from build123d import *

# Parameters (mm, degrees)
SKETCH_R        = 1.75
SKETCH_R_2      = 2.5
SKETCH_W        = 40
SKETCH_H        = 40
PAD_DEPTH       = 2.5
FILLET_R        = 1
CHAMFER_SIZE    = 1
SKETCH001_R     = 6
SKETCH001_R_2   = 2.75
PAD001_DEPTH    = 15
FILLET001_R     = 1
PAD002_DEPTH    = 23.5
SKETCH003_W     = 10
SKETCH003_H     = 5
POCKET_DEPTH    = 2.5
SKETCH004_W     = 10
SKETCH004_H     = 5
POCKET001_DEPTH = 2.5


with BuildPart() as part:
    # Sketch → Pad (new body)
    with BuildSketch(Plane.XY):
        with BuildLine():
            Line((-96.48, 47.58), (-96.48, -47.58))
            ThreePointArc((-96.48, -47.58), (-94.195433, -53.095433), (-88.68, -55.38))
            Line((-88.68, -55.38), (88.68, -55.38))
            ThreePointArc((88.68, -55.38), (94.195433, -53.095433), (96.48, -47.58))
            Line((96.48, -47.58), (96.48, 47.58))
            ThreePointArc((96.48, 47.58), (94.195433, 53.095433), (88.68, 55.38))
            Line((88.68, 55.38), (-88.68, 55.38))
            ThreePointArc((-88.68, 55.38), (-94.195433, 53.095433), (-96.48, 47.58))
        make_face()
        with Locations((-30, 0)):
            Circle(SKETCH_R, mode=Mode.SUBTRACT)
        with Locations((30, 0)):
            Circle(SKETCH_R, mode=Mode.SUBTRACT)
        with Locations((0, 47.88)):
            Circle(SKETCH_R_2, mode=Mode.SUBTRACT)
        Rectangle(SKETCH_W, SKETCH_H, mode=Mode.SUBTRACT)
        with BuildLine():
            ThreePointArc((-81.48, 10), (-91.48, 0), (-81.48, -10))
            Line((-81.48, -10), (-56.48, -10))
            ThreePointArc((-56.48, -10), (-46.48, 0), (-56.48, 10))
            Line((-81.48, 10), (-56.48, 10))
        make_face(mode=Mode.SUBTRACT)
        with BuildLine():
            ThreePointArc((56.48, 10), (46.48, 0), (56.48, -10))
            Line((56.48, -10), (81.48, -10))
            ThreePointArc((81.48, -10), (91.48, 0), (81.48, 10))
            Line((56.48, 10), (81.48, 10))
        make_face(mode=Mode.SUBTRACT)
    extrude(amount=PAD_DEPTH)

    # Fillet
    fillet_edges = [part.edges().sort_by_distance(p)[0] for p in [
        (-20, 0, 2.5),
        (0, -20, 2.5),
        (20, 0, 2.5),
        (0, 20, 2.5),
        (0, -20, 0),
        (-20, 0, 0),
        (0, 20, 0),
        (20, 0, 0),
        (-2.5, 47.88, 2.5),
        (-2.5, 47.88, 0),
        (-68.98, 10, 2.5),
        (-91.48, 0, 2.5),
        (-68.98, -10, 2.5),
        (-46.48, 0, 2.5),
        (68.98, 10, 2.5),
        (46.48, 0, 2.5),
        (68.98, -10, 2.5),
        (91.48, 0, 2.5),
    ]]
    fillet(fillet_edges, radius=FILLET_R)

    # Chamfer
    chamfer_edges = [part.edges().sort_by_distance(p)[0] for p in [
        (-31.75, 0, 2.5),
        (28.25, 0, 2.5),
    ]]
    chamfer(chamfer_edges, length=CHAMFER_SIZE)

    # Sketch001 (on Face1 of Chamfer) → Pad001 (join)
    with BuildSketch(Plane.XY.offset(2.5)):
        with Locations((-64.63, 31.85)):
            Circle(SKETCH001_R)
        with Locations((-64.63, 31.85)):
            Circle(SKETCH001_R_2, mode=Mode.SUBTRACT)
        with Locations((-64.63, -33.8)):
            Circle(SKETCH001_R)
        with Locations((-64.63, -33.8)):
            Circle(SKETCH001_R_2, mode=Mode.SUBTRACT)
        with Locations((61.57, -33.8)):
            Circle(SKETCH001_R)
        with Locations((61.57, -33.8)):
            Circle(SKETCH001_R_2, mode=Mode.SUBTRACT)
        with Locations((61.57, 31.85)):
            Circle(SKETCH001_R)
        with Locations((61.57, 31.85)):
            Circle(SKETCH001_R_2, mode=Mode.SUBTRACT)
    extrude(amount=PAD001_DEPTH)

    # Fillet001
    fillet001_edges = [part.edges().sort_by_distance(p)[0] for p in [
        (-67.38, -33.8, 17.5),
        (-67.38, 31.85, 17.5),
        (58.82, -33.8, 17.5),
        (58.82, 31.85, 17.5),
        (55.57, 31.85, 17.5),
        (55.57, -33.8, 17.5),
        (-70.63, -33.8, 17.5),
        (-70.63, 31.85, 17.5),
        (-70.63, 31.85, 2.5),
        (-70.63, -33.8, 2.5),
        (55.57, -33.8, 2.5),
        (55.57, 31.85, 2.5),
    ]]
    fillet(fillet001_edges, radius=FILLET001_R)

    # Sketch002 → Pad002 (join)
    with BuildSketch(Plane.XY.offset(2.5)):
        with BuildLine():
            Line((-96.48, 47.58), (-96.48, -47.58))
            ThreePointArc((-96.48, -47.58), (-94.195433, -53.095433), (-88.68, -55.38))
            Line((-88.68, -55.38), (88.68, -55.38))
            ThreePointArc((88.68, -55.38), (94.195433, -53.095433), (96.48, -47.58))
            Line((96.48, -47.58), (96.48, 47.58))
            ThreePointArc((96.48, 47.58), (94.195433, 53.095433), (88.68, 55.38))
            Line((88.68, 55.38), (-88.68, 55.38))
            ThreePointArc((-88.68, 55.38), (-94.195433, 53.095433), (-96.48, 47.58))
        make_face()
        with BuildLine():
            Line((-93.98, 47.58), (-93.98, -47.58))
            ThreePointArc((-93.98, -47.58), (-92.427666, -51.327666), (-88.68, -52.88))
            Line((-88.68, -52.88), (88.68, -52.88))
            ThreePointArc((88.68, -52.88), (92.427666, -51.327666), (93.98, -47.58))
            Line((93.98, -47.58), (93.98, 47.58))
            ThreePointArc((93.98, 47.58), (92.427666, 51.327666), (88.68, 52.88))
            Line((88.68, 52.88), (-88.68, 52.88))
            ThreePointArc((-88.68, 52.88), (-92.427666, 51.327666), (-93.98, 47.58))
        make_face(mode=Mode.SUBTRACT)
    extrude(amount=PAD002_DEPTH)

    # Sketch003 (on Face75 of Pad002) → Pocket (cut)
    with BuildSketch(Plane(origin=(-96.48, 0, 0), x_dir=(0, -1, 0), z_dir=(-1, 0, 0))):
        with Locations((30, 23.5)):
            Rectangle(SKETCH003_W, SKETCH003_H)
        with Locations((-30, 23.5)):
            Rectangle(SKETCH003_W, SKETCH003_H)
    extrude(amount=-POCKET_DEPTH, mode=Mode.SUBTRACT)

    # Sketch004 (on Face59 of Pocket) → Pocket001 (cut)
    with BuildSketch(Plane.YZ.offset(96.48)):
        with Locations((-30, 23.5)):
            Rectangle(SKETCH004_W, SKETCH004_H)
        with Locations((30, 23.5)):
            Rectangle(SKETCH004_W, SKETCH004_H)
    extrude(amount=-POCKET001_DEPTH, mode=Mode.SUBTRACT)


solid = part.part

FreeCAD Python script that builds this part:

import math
import FreeCAD as App
import Part
import Sketcher
from FreeCAD import Vector


def edges_at(feature, points):
    """Names of the edges that pass closest to the given points."""
    edges = feature.Shape.Edges
    near = lambda p: min(range(len(edges)), key=lambda i: edges[i].distToShape(Part.Vertex(*p))[0])
    return sorted({f"Edge{near(p) + 1}" for p in points})

doc = App.newDocument("Part")
body = doc.addObject("PartDesign::Body", "Body")

# Sketch on XY plane
sketch1 = body.newObject("Sketcher::SketchObject", "Sketch")
sketch1.AttachmentSupport = (doc.getObject("XY_Plane"), [""])
sketch1.MapMode = "FlatFace"
sketch1.addGeometry(Part.LineSegment(Vector(-96.5, 47.6, 0), Vector(-96.5, -47.6, 0)), False)
sketch1.addGeometry(Part.ArcOfCircle(Part.Circle(Vector(-88.7, -47.6, 0), Vector(0, 0, 1), 7.8), math.radians(180), math.radians(270)), False)
sketch1.addGeometry(Part.LineSegment(Vector(-88.7, -55.4, 0), Vector(88.7, -55.4, 0)), False)
sketch1.addGeometry(Part.ArcOfCircle(Part.Circle(Vector(88.7, -47.6, 0), Vector(0, 0, 1), 7.8), math.radians(-90), math.radians(0)), False)
sketch1.addGeometry(Part.LineSegment(Vector(96.5, -47.6, 0), Vector(96.5, 47.6, 0)), False)
sketch1.addGeometry(Part.ArcOfCircle(Part.Circle(Vector(88.7, 47.6, 0), Vector(0, 0, 1), 7.8), math.radians(0), math.radians(90)), False)
sketch1.addGeometry(Part.LineSegment(Vector(88.7, 55.4, 0), Vector(-88.7, 55.4, 0)), False)
sketch1.addGeometry(Part.ArcOfCircle(Part.Circle(Vector(-88.7, 47.6, 0), Vector(0, 0, 1), 7.8), math.radians(90), math.radians(180)), False)
sketch1.addGeometry(Part.ArcOfCircle(Part.Circle(Vector(-81.5, 0, 0), Vector(0, 0, 1), 10), math.radians(90), math.radians(270)), False)
sketch1.addGeometry(Part.LineSegment(Vector(-81.5, 10, 0), Vector(-56.5, 10, 0)), False)
sketch1.addGeometry(Part.ArcOfCircle(Part.Circle(Vector(-56.5, 0, 0), Vector(0, 0, 1), 10), math.radians(-90), math.radians(90)), False)
sketch1.addGeometry(Part.LineSegment(Vector(-56.5, -10, 0), Vector(-81.5, -10, 0)), False)
sketch1.addGeometry(Part.Circle(Vector(-30, 0, 0), Vector(0, 0, 1), 1.8), False)
sketch1.addGeometry(Part.LineSegment(Vector(20, -20, 0), Vector(-20, -20, 0)), False)
sketch1.addGeometry(Part.LineSegment(Vector(-20, -20, 0), Vector(-20, 20, 0)), False)
sketch1.addGeometry(Part.LineSegment(Vector(-20, 20, 0), Vector(20, 20, 0)), False)
sketch1.addGeometry(Part.LineSegment(Vector(20, 20, 0), Vector(20, -20, 0)), False)
sketch1.addGeometry(Part.Circle(Vector(30, 0, 0), Vector(0, 0, 1), 1.8), False)
sketch1.addGeometry(Part.ArcOfCircle(Part.Circle(Vector(56.5, 0, 0), Vector(0, 0, 1), 10), math.radians(90), math.radians(270)), False)
sketch1.addGeometry(Part.LineSegment(Vector(56.5, 10, 0), Vector(81.5, 10, 0)), False)
sketch1.addGeometry(Part.ArcOfCircle(Part.Circle(Vector(81.5, 0, 0), Vector(0, 0, 1), 10), math.radians(-90), math.radians(90)), False)
sketch1.addGeometry(Part.LineSegment(Vector(81.5, -10, 0), Vector(56.5, -10, 0)), False)
sketch1.addGeometry(Part.Circle(Vector(0, 47.9, 0), Vector(0, 0, 1), 2.5), False)
sketch1.addConstraint(Sketcher.Constraint("Tangent", 0, 2, 1, 1))
sketch1.addConstraint(Sketcher.Constraint("Tangent", 1, 2, 2, 1))
sketch1.addConstraint(Sketcher.Constraint("Tangent", 2, 2, 3, 1))
sketch1.addConstraint(Sketcher.Constraint("Tangent", 3, 2, 4, 1))
sketch1.addConstraint(Sketcher.Constraint("Tangent", 4, 2, 5, 1))
sketch1.addConstraint(Sketcher.Constraint("Tangent", 5, 2, 6, 1))
sketch1.addConstraint(Sketcher.Constraint("Tangent", 6, 2, 7, 1))
sketch1.addConstraint(Sketcher.Constraint("Tangent", 7, 2, 0, 1))
sketch1.addConstraint(Sketcher.Constraint("Tangent", 8, 1, 9, 1))
sketch1.addConstraint(Sketcher.Constraint("Tangent", 9, 2, 10, 2))
sketch1.addConstraint(Sketcher.Constraint("Tangent", 10, 1, 11, 1))
sketch1.addConstraint(Sketcher.Constraint("Tangent", 11, 2, 8, 2))
sketch1.addConstraint(Sketcher.Constraint("Coincident", 13, 2, 14, 1))
sketch1.addConstraint(Sketcher.Constraint("Coincident", 14, 2, 15, 1))
sketch1.addConstraint(Sketcher.Constraint("Coincident", 15, 2, 16, 1))
sketch1.addConstraint(Sketcher.Constraint("Coincident", 16, 2, 13, 1))
sketch1.addConstraint(Sketcher.Constraint("Tangent", 18, 1, 19, 1))
sketch1.addConstraint(Sketcher.Constraint("Tangent", 19, 2, 20, 2))
sketch1.addConstraint(Sketcher.Constraint("Tangent", 20, 1, 21, 1))
sketch1.addConstraint(Sketcher.Constraint("Tangent", 21, 2, 18, 2))
sketch1.addConstraint(Sketcher.Constraint("Vertical", 0))
sketch1.addConstraint(Sketcher.Constraint("Horizontal", 2))
sketch1.addConstraint(Sketcher.Constraint("Vertical", 4))
sketch1.addConstraint(Sketcher.Constraint("Horizontal", 6))
sketch1.addConstraint(Sketcher.Constraint("Horizontal", 9))
sketch1.addConstraint(Sketcher.Constraint("Horizontal", 11))
sketch1.addConstraint(Sketcher.Constraint("Horizontal", 13))
sketch1.addConstraint(Sketcher.Constraint("Vertical", 14))
sketch1.addConstraint(Sketcher.Constraint("Horizontal", 15))
sketch1.addConstraint(Sketcher.Constraint("Vertical", 16))
sketch1.addConstraint(Sketcher.Constraint("Horizontal", 19))
sketch1.addConstraint(Sketcher.Constraint("Horizontal", 21))
sketch1.addConstraint(Sketcher.Constraint("Equal", 1, 3))
sketch1.addConstraint(Sketcher.Constraint("Equal", 3, 5))
sketch1.addConstraint(Sketcher.Constraint("Equal", 5, 7))
sketch1.addConstraint(Sketcher.Constraint("Equal", 12, 17))
sketch1.addConstraint(Sketcher.Constraint("Equal", 10, 18))
sketch1.addConstraint(Sketcher.Constraint("Symmetric", 1, 3, 5, 3, -1, 1))
sketch1.addConstraint(Sketcher.Constraint("Symmetric", 12, 3, 17, 3, -1, 1))
sketch1.addConstraint(Sketcher.Constraint("Symmetric", 10, 3, 18, 3, -1, 1))
sketch1.addConstraint(Sketcher.Constraint("Symmetric", 13, 2, 15, 2, -1, 1))
sketch1.addConstraint(Sketcher.Constraint("Symmetric", 8, 3, 20, 3, -2))
sketch1.addConstraint(Sketcher.Constraint("PointOnObject", 12, 3, -1))
sketch1.addConstraint(Sketcher.Constraint("PointOnObject", 22, 3, -2))
sketch1.addConstraint(Sketcher.Constraint("Equal", 15, 14))
sketch1.addConstraint(Sketcher.Constraint("Diameter", 22, 5.0))
sketch1.addConstraint(Sketcher.Constraint("Radius", 8, 10.0))
sketch1.addConstraint(Sketcher.Constraint("Diameter", 12, 3.5))
sketch1.addConstraint(Sketcher.Constraint("Radius", 1, 7.8))
sketch1.addConstraint(Sketcher.Constraint("DistanceX", 9, 1, 9, 2, 25.0))
sketch1.addConstraint(Sketcher.Constraint("DistanceX", 13, 2, 13, 1, 40.0))
sketch1.addConstraint(Sketcher.Constraint("DistanceX", 12, 3, -1, 1, 30.0))
sketch1.addConstraint(Sketcher.Constraint("DistanceX", 0, 2, 8, 3, 15.0))
sketch1.addConstraint(Sketcher.Constraint("DistanceX", 2, 1, 2, 2, 177.36))
sketch1.addConstraint(Sketcher.Constraint("DistanceY", 0, 2, 0, 1, 95.16))
sketch1.addConstraint(Sketcher.Constraint("DistanceY", 5, 3, 22, 3, 0.3))
pad1 = body.newObject("PartDesign::Pad", "Pad")
pad1.Profile = sketch1
pad1.Length = 2.5
doc.recompute()

fillet = body.newObject("PartDesign::Fillet", "Fillet")
fillet.Base = (pad1, edges_at(pad1, [
    (-20, 0, 2.5),
    (0, -20, 2.5),
    (20, 0, 2.5),
    (0, 20, 2.5),
    (0, -20, 0),
    (-20, 0, 0),
    (0, 20, 0),
    (20, 0, 0),
    (-2.5, 47.88, 2.5),
    (-2.5, 47.88, 0),
    (-68.98, 10, 2.5),
    (-91.48, 0, 2.5),
    (-68.98, -10, 2.5),
    (-46.48, 0, 2.5),
    (68.98, 10, 2.5),
    (46.48, 0, 2.5),
    (68.98, -10, 2.5),
    (91.48, 0, 2.5),
]))
fillet.Radius = 1
doc.recompute()

chamfer = body.newObject("PartDesign::Chamfer", "Chamfer")
chamfer.Base = (fillet, edges_at(fillet, [(-31.75, 0, 2.5), (28.25, 0, 2.5)]))
chamfer.Size = 1

# Sketch on XY plane
sketch2 = body.newObject("Sketcher::SketchObject", "Sketch001")
sketch2.AttachmentSupport = (doc.getObject("XY_Plane"), [""])
sketch2.MapMode = "FlatFace"
sketch2.AttachmentOffset = App.Placement(Vector(0, 0, 2.5), App.Rotation())
sketch2.addGeometry(Part.Circle(Vector(-64.6, 31.9, 0), Vector(0, 0, 1), 6), False)
sketch2.addGeometry(Part.Circle(Vector(-64.6, 31.9, 0), Vector(0, 0, 1), 2.8), False)
sketch2.addGeometry(Part.Circle(Vector(-64.6, -33.8, 0), Vector(0, 0, 1), 6), False)
sketch2.addGeometry(Part.Circle(Vector(-64.6, -33.8, 0), Vector(0, 0, 1), 2.8), False)
sketch2.addGeometry(Part.Circle(Vector(61.6, -33.8, 0), Vector(0, 0, 1), 6), False)
sketch2.addGeometry(Part.Circle(Vector(61.6, -33.8, 0), Vector(0, 0, 1), 2.8), False)
sketch2.addGeometry(Part.Circle(Vector(61.6, 31.9, 0), Vector(0, 0, 1), 6), False)
sketch2.addGeometry(Part.Circle(Vector(61.6, 31.9, 0), Vector(0, 0, 1), 2.8), False)
sketch2.addConstraint(Sketcher.Constraint("Coincident", 1, 3, 0, 3))
sketch2.addConstraint(Sketcher.Constraint("Coincident", 3, 3, 2, 3))
sketch2.addConstraint(Sketcher.Constraint("Coincident", 5, 3, 4, 3))
sketch2.addConstraint(Sketcher.Constraint("Coincident", 7, 3, 6, 3))
sketch2.addConstraint(Sketcher.Constraint("Equal", 0, 2))
sketch2.addConstraint(Sketcher.Constraint("Equal", 1, 3))
sketch2.addConstraint(Sketcher.Constraint("Equal", 2, 4))
sketch2.addConstraint(Sketcher.Constraint("Equal", 3, 5))
sketch2.addConstraint(Sketcher.Constraint("Equal", 4, 6))
sketch2.addConstraint(Sketcher.Constraint("Equal", 5, 7))
sketch2.addConstraint(Sketcher.Constraint("Horizontal", 3, 3, 4, 3))
sketch2.addConstraint(Sketcher.Constraint("Horizontal", 1, 3, 6, 3))
sketch2.addConstraint(Sketcher.Constraint("Vertical", 1, 3, 2, 3))
sketch2.addConstraint(Sketcher.Constraint("Vertical", 5, 3, 6, 3))
sketch2.addConstraint(Sketcher.Constraint("Diameter", 0, 12.0))
sketch2.addConstraint(Sketcher.Constraint("Diameter", 1, 5.5))
sketch2.addConstraint(Sketcher.Constraint("DistanceY", 2, 3, -1, 1, 33.8))
sketch2.addConstraint(Sketcher.Constraint("DistanceX", 2, 3, 4, 3, 126.2))
sketch2.addConstraint(Sketcher.Constraint("DistanceX", 0, 3, -1, 1, 64.63))
sketch2.addConstraint(Sketcher.Constraint("DistanceY", -1, 1, 0, 3, 31.85))
pad2 = body.newObject("PartDesign::Pad", "Pad001")
pad2.Profile = sketch2
pad2.Length = 15
doc.recompute()

fillet2 = body.newObject("PartDesign::Fillet", "Fillet001")
fillet2.Base = (pad2, edges_at(pad2, [
    (-67.38, -33.8, 17.5),
    (-67.38, 31.85, 17.5),
    (58.82, -33.8, 17.5),
    (58.82, 31.85, 17.5),
    (55.57, 31.85, 17.5),
    (55.57, -33.8, 17.5),
    (-70.63, -33.8, 17.5),
    (-70.63, 31.85, 17.5),
    (-70.63, 31.85, 2.5),
    (-70.63, -33.8, 2.5),
    (55.57, -33.8, 2.5),
    (55.57, 31.85, 2.5),
]))
fillet2.Radius = 1

# Sketch on XY plane
sketch3 = body.newObject("Sketcher::SketchObject", "Sketch002")
sketch3.AttachmentSupport = (doc.getObject("XY_Plane"), [""])
sketch3.MapMode = "FlatFace"
sketch3.AttachmentOffset = App.Placement(Vector(0, 0, 2.5), App.Rotation())
sketch3.addGeometry(Part.LineSegment(Vector(-96, 48, 0), Vector(-96, -48, 0)), False)
sketch3.addGeometry(Part.ArcOfCircle(Part.Circle(Vector(-89, -48, 0), Vector(0, 0, 1), 8), math.radians(180), math.radians(270)), False)
sketch3.addGeometry(Part.LineSegment(Vector(-89, -55, 0), Vector(89, -55, 0)), False)
sketch3.addGeometry(Part.ArcOfCircle(Part.Circle(Vector(89, -48, 0), Vector(0, 0, 1), 8), math.radians(-90), math.radians(0)), False)
sketch3.addGeometry(Part.LineSegment(Vector(96, -48, 0), Vector(96, 48, 0)), False)
sketch3.addGeometry(Part.ArcOfCircle(Part.Circle(Vector(89, 48, 0), Vector(0, 0, 1), 8), math.radians(0), math.radians(90)), False)
sketch3.addGeometry(Part.LineSegment(Vector(89, 55, 0), Vector(-89, 55, 0)), False)
sketch3.addGeometry(Part.ArcOfCircle(Part.Circle(Vector(-89, 48, 0), Vector(0, 0, 1), 8), math.radians(90), math.radians(180)), False)
sketch3.addGeometry(Part.LineSegment(Vector(-94, -48, 0), Vector(-94, 48, 0)), False)
sketch3.addGeometry(Part.ArcOfCircle(Part.Circle(Vector(-89, 48, 0), Vector(0, 0, 1), 5), math.radians(90), math.radians(180)), False)
sketch3.addGeometry(Part.LineSegment(Vector(-89, 53, 0), Vector(89, 53, 0)), False)
sketch3.addGeometry(Part.ArcOfCircle(Part.Circle(Vector(89, 48, 0), Vector(0, 0, 1), 5), math.radians(0), math.radians(90)), False)
sketch3.addGeometry(Part.LineSegment(Vector(94, 48, 0), Vector(94, -48, 0)), False)
sketch3.addGeometry(Part.ArcOfCircle(Part.Circle(Vector(89, -48, 0), Vector(0, 0, 1), 5), math.radians(-90), math.radians(0)), False)
sketch3.addGeometry(Part.LineSegment(Vector(89, -53, 0), Vector(-89, -53, 0)), False)
sketch3.addGeometry(Part.ArcOfCircle(Part.Circle(Vector(-89, -48, 0), Vector(0, 0, 1), 5), math.radians(180), math.radians(270)), False)
sketch3.addConstraint(Sketcher.Constraint("Tangent", 0, 2, 1, 1))
sketch3.addConstraint(Sketcher.Constraint("Tangent", 1, 2, 2, 1))
sketch3.addConstraint(Sketcher.Constraint("Tangent", 2, 2, 3, 1))
sketch3.addConstraint(Sketcher.Constraint("Tangent", 3, 2, 4, 1))
sketch3.addConstraint(Sketcher.Constraint("Tangent", 4, 2, 5, 1))
sketch3.addConstraint(Sketcher.Constraint("Tangent", 5, 2, 6, 1))
sketch3.addConstraint(Sketcher.Constraint("Tangent", 6, 2, 7, 1))
sketch3.addConstraint(Sketcher.Constraint("Tangent", 7, 2, 0, 1))
sketch3.addConstraint(Sketcher.Constraint("Tangent", 8, 2, 9, 2))
sketch3.addConstraint(Sketcher.Constraint("Tangent", 9, 1, 10, 1))
sketch3.addConstraint(Sketcher.Constraint("Tangent", 10, 2, 11, 2))
sketch3.addConstraint(Sketcher.Constraint("Tangent", 11, 1, 12, 1))
sketch3.addConstraint(Sketcher.Constraint("Tangent", 12, 2, 13, 2))
sketch3.addConstraint(Sketcher.Constraint("Tangent", 13, 1, 14, 1))
sketch3.addConstraint(Sketcher.Constraint("Tangent", 14, 2, 15, 2))
sketch3.addConstraint(Sketcher.Constraint("Tangent", 15, 1, 8, 1))
sketch3.addConstraint(Sketcher.Constraint("Vertical", 0))
sketch3.addConstraint(Sketcher.Constraint("Horizontal", 2))
sketch3.addConstraint(Sketcher.Constraint("Vertical", 4))
sketch3.addConstraint(Sketcher.Constraint("Horizontal", 6))
sketch3.addConstraint(Sketcher.Constraint("Vertical", 8))
sketch3.addConstraint(Sketcher.Constraint("Horizontal", 10))
sketch3.addConstraint(Sketcher.Constraint("Vertical", 12))
sketch3.addConstraint(Sketcher.Constraint("Horizontal", 14))
sketch3.addConstraint(Sketcher.Constraint("Coincident", 9, 3, 7, 3))
sketch3.addConstraint(Sketcher.Constraint("Coincident", 11, 3, 5, 3))
sketch3.addConstraint(Sketcher.Constraint("Coincident", 13, 3, 3, 3))
sketch3.addConstraint(Sketcher.Constraint("Equal", 1, 3))
sketch3.addConstraint(Sketcher.Constraint("Equal", 3, 5))
sketch3.addConstraint(Sketcher.Constraint("Equal", 5, 7))
sketch3.addConstraint(Sketcher.Constraint("Equal", 13, 15))
sketch3.addConstraint(Sketcher.Constraint("Symmetric", 1, 3, 5, 3, -1, 1))
sketch3.addConstraint(Sketcher.Constraint("Radius", 1, 7.8))
sketch3.addConstraint(Sketcher.Constraint("Radius", 9, 5.3))
sketch3.addConstraint(Sketcher.Constraint("DistanceX", 2, 1, 2, 2, 177.36))
sketch3.addConstraint(Sketcher.Constraint("DistanceY", 0, 2, 0, 1, 95.16))
pad3 = body.newObject("PartDesign::Pad", "Pad002")
pad3.Profile = sketch3
pad3.Length = 23.5

# Sketch on YZ plane
sketch4 = body.newObject("Sketcher::SketchObject", "Sketch003")
sketch4.AttachmentSupport = (doc.getObject("YZ_Plane"), [""])
sketch4.MapMode = "FlatFace"
sketch4.AttachmentOffset = App.Placement(Vector(0, 0, -96.48), App.Rotation())
sketch4.addGeometry(Part.LineSegment(Vector(-25, 26, 0), Vector(-25, 21, 0)), False)
sketch4.addGeometry(Part.LineSegment(Vector(-25, 21, 0), Vector(-35, 21, 0)), False)
sketch4.addGeometry(Part.LineSegment(Vector(-35, 21, 0), Vector(-35, 26, 0)), False)
sketch4.addGeometry(Part.LineSegment(Vector(-35, 26, 0), Vector(-25, 26, 0)), False)
sketch4.addGeometry(Part.LineSegment(Vector(35, 26, 0), Vector(35, 21, 0)), False)
sketch4.addGeometry(Part.LineSegment(Vector(35, 21, 0), Vector(25, 21, 0)), False)
sketch4.addGeometry(Part.LineSegment(Vector(25, 21, 0), Vector(25, 26, 0)), False)
sketch4.addGeometry(Part.LineSegment(Vector(25, 26, 0), Vector(35, 26, 0)), False)
sketch4.addConstraint(Sketcher.Constraint("Coincident", 0, 2, 1, 1))
sketch4.addConstraint(Sketcher.Constraint("Coincident", 1, 2, 2, 1))
sketch4.addConstraint(Sketcher.Constraint("Coincident", 2, 2, 3, 1))
sketch4.addConstraint(Sketcher.Constraint("Coincident", 3, 2, 0, 1))
sketch4.addConstraint(Sketcher.Constraint("Coincident", 4, 2, 5, 1))
sketch4.addConstraint(Sketcher.Constraint("Coincident", 5, 2, 6, 1))
sketch4.addConstraint(Sketcher.Constraint("Coincident", 6, 2, 7, 1))
sketch4.addConstraint(Sketcher.Constraint("Coincident", 7, 2, 4, 1))
sketch4.addConstraint(Sketcher.Constraint("Vertical", 0))
sketch4.addConstraint(Sketcher.Constraint("Horizontal", 1))
sketch4.addConstraint(Sketcher.Constraint("Vertical", 2))
sketch4.addConstraint(Sketcher.Constraint("Horizontal", 3))
sketch4.addConstraint(Sketcher.Constraint("Vertical", 4))
sketch4.addConstraint(Sketcher.Constraint("Horizontal", 5))
sketch4.addConstraint(Sketcher.Constraint("Vertical", 6))
sketch4.addConstraint(Sketcher.Constraint("Horizontal", 7))
sketch4.addConstraint(Sketcher.Constraint("Symmetric", 1, 2, 4, 2, -2))
sketch4.addConstraint(Sketcher.Constraint("Symmetric", 3, 2, 6, 2, -2))
sketch4.addConstraint(Sketcher.Constraint("DistanceX", 1, 2, 1, 1, 10.0))
sketch4.addConstraint(Sketcher.Constraint("DistanceY", 0, 2, 0, 1, 5.0))
sketch4.addConstraint(Sketcher.Constraint("DistanceX", 0, 2, -1, 1, 25.0))
sketch4.addConstraint(Sketcher.Constraint("DistanceY", -1, 1, 0, 2, 21.0))
pocket1 = body.newObject("PartDesign::Pocket", "Pocket")
pocket1.Profile = sketch4
pocket1.Length = 2.5
pocket1.Reversed = True

# Sketch on YZ plane
sketch5 = body.newObject("Sketcher::SketchObject", "Sketch004")
sketch5.AttachmentSupport = (doc.getObject("YZ_Plane"), [""])
sketch5.MapMode = "FlatFace"
sketch5.AttachmentOffset = App.Placement(Vector(0, 0, 96.48), App.Rotation())
sketch5.addGeometry(Part.LineSegment(Vector(-35, 26, 0), Vector(-35, 21, 0)), False)
sketch5.addGeometry(Part.LineSegment(Vector(-35, 21, 0), Vector(-25, 21, 0)), False)
sketch5.addGeometry(Part.LineSegment(Vector(-25, 21, 0), Vector(-25, 26, 0)), False)
sketch5.addGeometry(Part.LineSegment(Vector(-25, 26, 0), Vector(-35, 26, 0)), False)
sketch5.addGeometry(Part.LineSegment(Vector(25, 26, 0), Vector(25, 21, 0)), False)
sketch5.addGeometry(Part.LineSegment(Vector(25, 21, 0), Vector(35, 21, 0)), False)
sketch5.addGeometry(Part.LineSegment(Vector(35, 21, 0), Vector(35, 26, 0)), False)
sketch5.addGeometry(Part.LineSegment(Vector(35, 26, 0), Vector(25, 26, 0)), False)
sketch5.addConstraint(Sketcher.Constraint("Coincident", 0, 2, 1, 1))
sketch5.addConstraint(Sketcher.Constraint("Coincident", 1, 2, 2, 1))
sketch5.addConstraint(Sketcher.Constraint("Coincident", 2, 2, 3, 1))
sketch5.addConstraint(Sketcher.Constraint("Coincident", 3, 2, 0, 1))
sketch5.addConstraint(Sketcher.Constraint("Coincident", 4, 2, 5, 1))
sketch5.addConstraint(Sketcher.Constraint("Coincident", 5, 2, 6, 1))
sketch5.addConstraint(Sketcher.Constraint("Coincident", 6, 2, 7, 1))
sketch5.addConstraint(Sketcher.Constraint("Coincident", 7, 2, 4, 1))
sketch5.addConstraint(Sketcher.Constraint("Vertical", 0))
sketch5.addConstraint(Sketcher.Constraint("Horizontal", 1))
sketch5.addConstraint(Sketcher.Constraint("Vertical", 2))
sketch5.addConstraint(Sketcher.Constraint("Horizontal", 3))
sketch5.addConstraint(Sketcher.Constraint("Vertical", 4))
sketch5.addConstraint(Sketcher.Constraint("Horizontal", 5))
sketch5.addConstraint(Sketcher.Constraint("Vertical", 6))
sketch5.addConstraint(Sketcher.Constraint("Horizontal", 7))
sketch5.addConstraint(Sketcher.Constraint("Symmetric", 1, 2, 4, 2, -2))
sketch5.addConstraint(Sketcher.Constraint("Symmetric", 3, 2, 6, 2, -2))
sketch5.addConstraint(Sketcher.Constraint("DistanceX", 1, 1, 1, 2, 10.0))
sketch5.addConstraint(Sketcher.Constraint("DistanceY", 0, 2, 0, 1, 5.0))
sketch5.addConstraint(Sketcher.Constraint("DistanceX", 0, 2, -1, 1, 35.0))
sketch5.addConstraint(Sketcher.Constraint("DistanceY", -1, 1, 0, 2, 21.0))
pocket2 = body.newObject("PartDesign::Pocket", "Pocket001")
pocket2.Profile = sketch5
pocket2.Length = 2.5

doc.recompute()
